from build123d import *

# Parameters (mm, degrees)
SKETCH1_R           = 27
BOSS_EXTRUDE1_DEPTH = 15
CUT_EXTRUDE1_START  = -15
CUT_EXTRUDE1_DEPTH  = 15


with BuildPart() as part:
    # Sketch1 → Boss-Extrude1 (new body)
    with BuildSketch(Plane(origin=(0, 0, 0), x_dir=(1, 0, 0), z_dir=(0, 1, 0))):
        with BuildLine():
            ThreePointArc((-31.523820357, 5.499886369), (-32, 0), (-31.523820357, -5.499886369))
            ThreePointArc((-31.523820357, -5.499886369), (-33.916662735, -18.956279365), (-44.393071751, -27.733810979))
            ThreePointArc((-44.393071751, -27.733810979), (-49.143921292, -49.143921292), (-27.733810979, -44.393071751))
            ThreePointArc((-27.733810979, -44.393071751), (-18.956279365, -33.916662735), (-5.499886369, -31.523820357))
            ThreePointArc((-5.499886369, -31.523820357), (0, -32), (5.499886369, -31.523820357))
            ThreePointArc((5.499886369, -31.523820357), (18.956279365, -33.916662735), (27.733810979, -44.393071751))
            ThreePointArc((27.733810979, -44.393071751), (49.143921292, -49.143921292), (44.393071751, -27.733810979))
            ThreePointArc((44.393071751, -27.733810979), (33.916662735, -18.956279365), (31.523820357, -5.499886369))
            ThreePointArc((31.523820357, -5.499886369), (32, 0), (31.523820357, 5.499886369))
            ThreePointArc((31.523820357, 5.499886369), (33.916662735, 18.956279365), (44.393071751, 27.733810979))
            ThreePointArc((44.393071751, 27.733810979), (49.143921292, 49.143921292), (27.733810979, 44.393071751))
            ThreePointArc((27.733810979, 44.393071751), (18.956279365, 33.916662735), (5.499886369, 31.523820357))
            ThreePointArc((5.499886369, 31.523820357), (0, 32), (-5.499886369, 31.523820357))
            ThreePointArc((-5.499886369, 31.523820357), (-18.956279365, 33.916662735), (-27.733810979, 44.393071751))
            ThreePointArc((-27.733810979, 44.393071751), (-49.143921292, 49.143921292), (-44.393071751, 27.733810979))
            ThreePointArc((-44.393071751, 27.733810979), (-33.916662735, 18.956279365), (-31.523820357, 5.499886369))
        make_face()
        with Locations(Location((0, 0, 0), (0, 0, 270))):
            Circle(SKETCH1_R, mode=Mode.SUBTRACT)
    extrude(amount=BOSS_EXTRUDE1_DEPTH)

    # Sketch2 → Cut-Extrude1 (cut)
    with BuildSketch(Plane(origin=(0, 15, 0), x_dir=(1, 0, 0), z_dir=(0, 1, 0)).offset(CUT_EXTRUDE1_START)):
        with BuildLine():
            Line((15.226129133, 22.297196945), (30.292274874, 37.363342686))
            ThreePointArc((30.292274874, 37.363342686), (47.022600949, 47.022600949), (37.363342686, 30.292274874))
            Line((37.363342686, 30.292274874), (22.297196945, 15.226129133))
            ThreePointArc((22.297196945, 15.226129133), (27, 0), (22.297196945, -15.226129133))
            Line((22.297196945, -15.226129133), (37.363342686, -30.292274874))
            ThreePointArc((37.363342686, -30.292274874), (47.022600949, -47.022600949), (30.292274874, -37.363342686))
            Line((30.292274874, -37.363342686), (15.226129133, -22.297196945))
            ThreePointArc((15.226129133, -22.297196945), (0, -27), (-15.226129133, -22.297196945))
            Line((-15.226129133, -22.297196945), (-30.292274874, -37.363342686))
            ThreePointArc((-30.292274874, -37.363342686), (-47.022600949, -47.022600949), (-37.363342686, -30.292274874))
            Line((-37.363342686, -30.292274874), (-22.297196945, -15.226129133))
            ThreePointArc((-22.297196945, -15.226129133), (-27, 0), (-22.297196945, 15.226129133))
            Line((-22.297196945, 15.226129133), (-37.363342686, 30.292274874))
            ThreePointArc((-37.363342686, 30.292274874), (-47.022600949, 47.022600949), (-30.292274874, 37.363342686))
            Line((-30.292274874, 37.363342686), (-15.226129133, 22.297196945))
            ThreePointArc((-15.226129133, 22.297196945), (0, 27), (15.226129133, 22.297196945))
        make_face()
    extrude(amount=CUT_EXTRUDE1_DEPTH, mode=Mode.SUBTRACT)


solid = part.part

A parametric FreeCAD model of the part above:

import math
import FreeCAD as App
import Part
import Sketcher

V = App.Vector

doc = App.newDocument("Part")
body = doc.addObject("PartDesign::Body", "Body")

# Sketch on XZ plane
sketch1 = doc.addObject("Sketcher::SketchObject", "Sketch")
body.addObject(sketch1)
sketch1.AttachmentSupport = (doc.XZ_Plane, [""])
sketch1.MapMode = "FlatFace"
sketch1.addGeometry(Part.ArcOfCircle(Part.Circle(V(0, 0, 0), V(0, 0, 1), 32), math.radians(170.103353), math.radians(189.896647)), False)
sketch1.addGeometry(Part.ArcOfCircle(Part.Circle(V(-51.226208, 8.937315, 0), V(0, 0, 1), 20), math.radians(-9.896647), math.radians(70.022152)), False)
sketch1.addGeometry(Part.ArcOfCircle(Part.Circle(V(-39.951533, 39.951533, 0), V(0, 0, 1), 13), math.radians(19.977848), math.radians(250.022152)), False)
sketch1.addGeometry(Part.ArcOfCircle(Part.Circle(V(-8.937315, 51.226208, 0), V(0, 0, 1), 20), math.radians(-160.022152), math.radians(-80.103353)), False)
sketch1.addGeometry(Part.ArcOfCircle(Part.Circle(V(0, 0, 0), V(0, 0, 1), 32), math.radians(80.103353), math.radians(99.896647)), False)
sketch1.addGeometry(Part.ArcOfCircle(Part.Circle(V(8.937315, 51.226208, 0), V(0, 0, 1), 20), math.radians(-99.896647), math.radians(-19.977848)), False)
sketch1.addGeometry(Part.ArcOfCircle(Part.Circle(V(39.951533, 39.951533, 0), V(0, 0, 1), 13), math.radians(-70.022152), math.radians(160.022152)), False)
sketch1.addGeometry(Part.ArcOfCircle(Part.Circle(V(51.226208, 8.937315, 0), V(0, 0, 1), 20), math.radians(109.977848), math.radians(189.896647)), False)
sketch1.addGeometry(Part.ArcOfCircle(Part.Circle(V(0, 0, 0), V(0, 0, 1), 32), math.radians(-9.896647), math.radians(9.896647)), False)
sketch1.addGeometry(Part.ArcOfCircle(Part.Circle(V(51.226208, -8.937315, 0), V(0, 0, 1), 20), math.radians(170.103353), math.radians(250.022152)), False)
sketch1.addGeometry(Part.ArcOfCircle(Part.Circle(V(39.951533, -39.951533, 0), V(0, 0, 1), 13), math.radians(-160.022152), math.radians(70.022152)), False)
sketch1.addGeometry(Part.ArcOfCircle(Part.Circle(V(8.937315, -51.226208, 0), V(0, 0, 1), 20), math.radians(19.977848), math.radians(99.896647)), False)
sketch1.addGeometry(Part.ArcOfCircle(Part.Circle(V(0, 0, 0), V(0, 0, 1), 32), math.radians(-99.896647), math.radians(-80.103353)), False)
sketch1.addGeometry(Part.ArcOfCircle(Part.Circle(V(-8.937315, -51.226208, 0), V(0, 0, 1), 20), math.radians(80.103353), math.radians(160.022152)), False)
sketch1.addGeometry(Part.ArcOfCircle(Part.Circle(V(-39.951533, -39.951533, 0), V(0, 0, 1), 13), math.radians(109.977848), math.radians(340.022152)), False)
sketch1.addGeometry(Part.ArcOfCircle(Part.Circle(V(-51.226208, -8.937315, 0), V(0, 0, 1), 20), math.radians(-70.022152), math.radians(9.896647)), False)
sketch1.addGeometry(Part.Circle(V(0, 0, 0), V(0, 0, 1), 27), False)
sketch1.addConstraint(Sketcher.Constraint("Tangent", 0, 1, 1, 1))
sketch1.addConstraint(Sketcher.Constraint("Tangent", 1, 2, 2, 2))
sketch1.addConstraint(Sketcher.Constraint("Tangent", 2, 1, 3, 1))
sketch1.addConstraint(Sketcher.Constraint("Tangent", 3, 2, 4, 2))
sketch1.addConstraint(Sketcher.Constraint("Tangent", 4, 1, 5, 1))
sketch1.addConstraint(Sketcher.Constraint("Tangent", 5, 2, 6, 2))
sketch1.addConstraint(Sketcher.Constraint("Tangent", 6, 1, 7, 1))
sketch1.addConstraint(Sketcher.Constraint("Tangent", 7, 2, 8, 2))
sketch1.addConstraint(Sketcher.Constraint("Tangent", 8, 1, 9, 1))
sketch1.addConstraint(Sketcher.Constraint("Tangent", 9, 2, 10, 2))
sketch1.addConstraint(Sketcher.Constraint("Tangent", 10, 1, 11, 1))
sketch1.addConstraint(Sketcher.Constraint("Tangent", 11, 2, 12, 2))
sketch1.addConstraint(Sketcher.Constraint("Tangent", 12, 1, 13, 1))
sketch1.addConstraint(Sketcher.Constraint("Tangent", 13, 2, 14, 2))
sketch1.addConstraint(Sketcher.Constraint("Tangent", 14, 1, 15, 1))
sketch1.addConstraint(Sketcher.Constraint("Tangent", 15, 2, 0, 2))
sketch1.addConstraint(Sketcher.Constraint("Coincident", 0, 3, -1, 1))
sketch1.addConstraint(Sketcher.Constraint("Coincident", 4, 3, -1, 1))
sketch1.addConstraint(Sketcher.Constraint("Coincident", 8, 3, -1, 1))
sketch1.addConstraint(Sketcher.Constraint("Coincident", 12, 3, -1, 1))
sketch1.addConstraint(Sketcher.Constraint("Coincident", 16, 3, -1, 1))
sketch1.addConstraint(Sketcher.Constraint("Equal", 1, 3))
sketch1.addConstraint(Sketcher.Constraint("Equal", 0, 4))
sketch1.addConstraint(Sketcher.Constraint("Equal", 3, 5))
sketch1.addConstraint(Sketcher.Constraint("Equal", 2, 6))
sketch1.addConstraint(Sketcher.Constraint("Equal", 5, 7))
sketch1.addConstraint(Sketcher.Constraint("Equal", 4, 8))
sketch1.addConstraint(Sketcher.Constraint("Equal", 7, 9))
sketch1.addConstraint(Sketcher.Constraint("Equal", 6, 10))
sketch1.addConstraint(Sketcher.Constraint("Equal", 9, 11))
sketch1.addConstraint(Sketcher.Constraint("Equal", 8, 12))
sketch1.addConstraint(Sketcher.Constraint("Equal", 11, 13))
sketch1.addConstraint(Sketcher.Constraint("Equal", 10, 14))
sketch1.addConstraint(Sketcher.Constraint("Equal", 13, 15))
sketch1.addConstraint(Sketcher.Constraint("Symmetric", 2, 3, 10, 3, -1, 1))
sketch1.addConstraint(Sketcher.Constraint("Symmetric", 6, 3, 14, 3, -1, 1))
sketch1.addConstraint(Sketcher.Constraint("Symmetric", 2, 3, 6, 3, -2))
sketch1.addConstraint(Sketcher.Constraint("Diameter", 16, 54.0))
sketch1.addConstraint(Sketcher.Constraint("Radius", 0, 32.0))
sketch1.addConstraint(Sketcher.Constraint("Radius", 1, 20.0))
sketch1.addConstraint(Sketcher.Constraint("Radius", 2, 13.0))
sketch1.addConstraint(Sketcher.Constraint("DistanceY", 15, 3, 0, 1, 14.437202))
sketch1.addConstraint(Sketcher.Constraint("DistanceX", 3, 2, 5, 3, 14.437202))
pad1 = doc.addObject("PartDesign::Pad", "Pad")
body.addObject(pad1)
pad1.Profile = sketch1
pad1.Length = 15
pad1.Reversed = True

# Sketch on XZ plane
sketch2 = doc.addObject("Sketcher::SketchObject", "Sketch001")
body.addObject(sketch2)
sketch2.AttachmentSupport = (doc.XZ_Plane, [""])
sketch2.MapMode = "FlatFace"
sketch2.addGeometry(Part.LineSegment(V(30.292275, -37.363343, 0), V(15.226129, -22.297197, 0)), False)
sketch2.addGeometry(Part.ArcOfCircle(Part.Circle(V(0, 0, 0), V(0, 0, 1), 27), math.radians(-124.328071), math.radians(-55.671929)), False)
sketch2.addGeometry(Part.LineSegment(V(-15.226129, -22.297197, 0), V(-30.292275, -37.363343, 0)), False)
sketch2.addGeometry(Part.ArcOfCircle(Part.Circle(V(-39.951533, -39.951533, 0), V(0, 0, 1), 10), math.radians(75), math.radians(375)), False)
sketch2.addGeometry(Part.LineSegment(V(-37.363343, -30.292275, 0), V(-22.297197, -15.226129, 0)), False)
sketch2.addGeometry(Part.ArcOfCircle(Part.Circle(V(0, 0, 0), V(0, 0, 1), 27), math.radians(145.671929), math.radians(214.328071)), False)
sketch2.addGeometry(Part.LineSegment(V(-22.297197, 15.226129, 0), V(-37.363343, 30.292275, 0)), False)
sketch2.addGeometry(Part.ArcOfCircle(Part.Circle(V(-39.951533, 39.951533, 0), V(0, 0, 1), 10), math.radians(-15), math.radians(285)), False)
sketch2.addGeometry(Part.LineSegment(V(-30.292275, 37.363343, 0), V(-15.226129, 22.297197, 0)), False)
sketch2.addGeometry(Part.ArcOfCircle(Part.Circle(V(0, 0, 0), V(0, 0, 1), 27), math.radians(55.671929), math.radians(124.328071)), False)
sketch2.addGeometry(Part.LineSegment(V(15.226129, 22.297197, 0), V(30.292275, 37.363343, 0)), False)
sketch2.addGeometry(Part.ArcOfCircle(Part.Circle(V(39.951533, 39.951533, 0), V(0, 0, 1), 10), math.radians(-105), math.radians(195)), False)
sketch2.addGeometry(Part.LineSegment(V(37.363343, 30.292275, 0), V(22.297197, 15.226129, 0)), False)
sketch2.addGeometry(Part.ArcOfCircle(Part.Circle(V(0, 0, 0), V(0, 0, 1), 27), math.radians(-34.328071), math.radians(34.328071)), False)
sketch2.addGeometry(Part.LineSegment(V(22.297197, -15.226129, 0), V(37.363343, -30.292275, 0)), False)
sketch2.addGeometry(Part.ArcOfCircle(Part.Circle(V(39.951533, -39.951533, 0), V(0, 0, 1), 10), math.radians(165), math.radians(465)), False)
sketch2.addConstraint(Sketcher.Constraint("Coincident", 0, 2, 1, 2))
sketch2.addConstraint(Sketcher.Constraint("Coincident", 1, 1, 2, 1))
sketch2.addConstraint(Sketcher.Constraint("Coincident", 2, 2, 3, 2))
sketch2.addConstraint(Sketcher.Constraint("Coincident", 3, 1, 4, 1))
sketch2.addConstraint(Sketcher.Constraint("Coincident", 4, 2, 5, 2))
sketch2.addConstraint(Sketcher.Constraint("Coincident", 5, 1, 6, 1))
sketch2.addConstraint(Sketcher.Constraint("Coincident", 6, 2, 7, 2))
sketch2.addConstraint(Sketcher.Constraint("Coincident", 7, 1, 8, 1))
sketch2.addConstraint(Sketcher.Constraint("Coincident", 8, 2, 9, 2))
sketch2.addConstraint(Sketcher.Constraint("Coincident", 9, 1, 10, 1))
sketch2.addConstraint(Sketcher.Constraint("Coincident", 10, 2, 11, 2))
sketch2.addConstraint(Sketcher.Constraint("Coincident", 11, 1, 12, 1))
sketch2.addConstraint(Sketcher.Constraint("Coincident", 12, 2, 13, 2))
sketch2.addConstraint(Sketcher.Constraint("Coincident", 13, 1, 14, 1))
sketch2.addConstraint(Sketcher.Constraint("Coincident", 14, 2, 15, 2))
sketch2.addConstraint(Sketcher.Constraint("Coincident", 15, 1, 0, 1))
sketch2.addConstraint(Sketcher.Constraint("Coincident", 1, 3, -1, 1))
sketch2.addConstraint(Sketcher.Constraint("Coincident", 5, 3, -1, 1))
sketch2.addConstraint(Sketcher.Constraint("Coincident", 9, 3, -1, 1))
sketch2.addConstraint(Sketcher.Constraint("Coincident", 13, 3, -1, 1))
sketch2.addConstraint(Sketcher.Constraint("Equal", 1, 5))
sketch2.addConstraint(Sketcher.Constraint("Equal", 3, 7))
sketch2.addConstraint(Sketcher.Constraint("Equal", 5, 9))
sketch2.addConstraint(Sketcher.Constraint("Equal", 7, 11))
sketch2.addConstraint(Sketcher.Constraint("Equal", 9, 13))
sketch2.addConstraint(Sketcher.Constraint("Equal", 11, 15))
sketch2.addConstraint(Sketcher.Constraint("Symmetric", 3, 3, 11, 3, -1, 1))
sketch2.addConstraint(Sketcher.Constraint("Symmetric", 7, 3, 15, 3, -1, 1))
sketch2.addConstraint(Sketcher.Constraint("Symmetric", 7, 3, 11, 3, -2))
sketch2.addConstraint(Sketcher.Constraint("Perpendicular", 0, 2))
sketch2.addConstraint(Sketcher.Constraint("Parallel", 2, 4))
sketch2.addConstraint(Sketcher.Constraint("Perpendicular", 4, 6))
sketch2.addConstraint(Sketcher.Constraint("Parallel", 6, 8))
sketch2.addConstraint(Sketcher.Constraint("Perpendicular", 8, 10))
sketch2.addConstraint(Sketcher.Constraint("Parallel", 10, 12))
sketch2.addConstraint(Sketcher.Constraint("Perpendicular", 12, 14))
sketch2.addConstraint(Sketcher.Constraint("Horizontal", 0, 2, 1, 1))
sketch2.addConstraint(Sketcher.Constraint("Horizontal", 8, 2, 9, 1))
sketch2.addConstraint(Sketcher.Constraint("Horizontal", 7, 1, 10, 2))
sketch2.addConstraint(Sketcher.Constraint("Horizontal", 6, 2, 11, 1))
sketch2.addConstraint(Sketcher.Constraint("Horizontal", 4, 2, 13, 1))
sketch2.addConstraint(Sketcher.Constraint("Vertical", 4, 2, 5, 1))
sketch2.addConstraint(Sketcher.Constraint("Vertical", 2, 2, 7, 1))
sketch2.addConstraint(Sketcher.Constraint("Equal", 2, 4))
sketch2.addConstraint(Sketcher.Constraint("Radius", 1, 27.0))
sketch2.addConstraint(Sketcher.Constraint("Radius", 3, 10.0))
sketch2.addConstraint(Sketcher.Constraint("DistanceX", -1, 1, 0, 2, 15.226129))
sketch2.addConstraint(Sketcher.Constraint("DistanceY", 4, 2, -1, 1, 15.226129))
sketch2.addConstraint(Sketcher.Constraint("Distance", 0, 21.306748))
pocket1 = doc.addObject("PartDesign::Pocket", "Pocket")
body.addObject(pocket1)
pocket1.Profile = sketch2
pocket1.Length = 15

doc.recompute()
